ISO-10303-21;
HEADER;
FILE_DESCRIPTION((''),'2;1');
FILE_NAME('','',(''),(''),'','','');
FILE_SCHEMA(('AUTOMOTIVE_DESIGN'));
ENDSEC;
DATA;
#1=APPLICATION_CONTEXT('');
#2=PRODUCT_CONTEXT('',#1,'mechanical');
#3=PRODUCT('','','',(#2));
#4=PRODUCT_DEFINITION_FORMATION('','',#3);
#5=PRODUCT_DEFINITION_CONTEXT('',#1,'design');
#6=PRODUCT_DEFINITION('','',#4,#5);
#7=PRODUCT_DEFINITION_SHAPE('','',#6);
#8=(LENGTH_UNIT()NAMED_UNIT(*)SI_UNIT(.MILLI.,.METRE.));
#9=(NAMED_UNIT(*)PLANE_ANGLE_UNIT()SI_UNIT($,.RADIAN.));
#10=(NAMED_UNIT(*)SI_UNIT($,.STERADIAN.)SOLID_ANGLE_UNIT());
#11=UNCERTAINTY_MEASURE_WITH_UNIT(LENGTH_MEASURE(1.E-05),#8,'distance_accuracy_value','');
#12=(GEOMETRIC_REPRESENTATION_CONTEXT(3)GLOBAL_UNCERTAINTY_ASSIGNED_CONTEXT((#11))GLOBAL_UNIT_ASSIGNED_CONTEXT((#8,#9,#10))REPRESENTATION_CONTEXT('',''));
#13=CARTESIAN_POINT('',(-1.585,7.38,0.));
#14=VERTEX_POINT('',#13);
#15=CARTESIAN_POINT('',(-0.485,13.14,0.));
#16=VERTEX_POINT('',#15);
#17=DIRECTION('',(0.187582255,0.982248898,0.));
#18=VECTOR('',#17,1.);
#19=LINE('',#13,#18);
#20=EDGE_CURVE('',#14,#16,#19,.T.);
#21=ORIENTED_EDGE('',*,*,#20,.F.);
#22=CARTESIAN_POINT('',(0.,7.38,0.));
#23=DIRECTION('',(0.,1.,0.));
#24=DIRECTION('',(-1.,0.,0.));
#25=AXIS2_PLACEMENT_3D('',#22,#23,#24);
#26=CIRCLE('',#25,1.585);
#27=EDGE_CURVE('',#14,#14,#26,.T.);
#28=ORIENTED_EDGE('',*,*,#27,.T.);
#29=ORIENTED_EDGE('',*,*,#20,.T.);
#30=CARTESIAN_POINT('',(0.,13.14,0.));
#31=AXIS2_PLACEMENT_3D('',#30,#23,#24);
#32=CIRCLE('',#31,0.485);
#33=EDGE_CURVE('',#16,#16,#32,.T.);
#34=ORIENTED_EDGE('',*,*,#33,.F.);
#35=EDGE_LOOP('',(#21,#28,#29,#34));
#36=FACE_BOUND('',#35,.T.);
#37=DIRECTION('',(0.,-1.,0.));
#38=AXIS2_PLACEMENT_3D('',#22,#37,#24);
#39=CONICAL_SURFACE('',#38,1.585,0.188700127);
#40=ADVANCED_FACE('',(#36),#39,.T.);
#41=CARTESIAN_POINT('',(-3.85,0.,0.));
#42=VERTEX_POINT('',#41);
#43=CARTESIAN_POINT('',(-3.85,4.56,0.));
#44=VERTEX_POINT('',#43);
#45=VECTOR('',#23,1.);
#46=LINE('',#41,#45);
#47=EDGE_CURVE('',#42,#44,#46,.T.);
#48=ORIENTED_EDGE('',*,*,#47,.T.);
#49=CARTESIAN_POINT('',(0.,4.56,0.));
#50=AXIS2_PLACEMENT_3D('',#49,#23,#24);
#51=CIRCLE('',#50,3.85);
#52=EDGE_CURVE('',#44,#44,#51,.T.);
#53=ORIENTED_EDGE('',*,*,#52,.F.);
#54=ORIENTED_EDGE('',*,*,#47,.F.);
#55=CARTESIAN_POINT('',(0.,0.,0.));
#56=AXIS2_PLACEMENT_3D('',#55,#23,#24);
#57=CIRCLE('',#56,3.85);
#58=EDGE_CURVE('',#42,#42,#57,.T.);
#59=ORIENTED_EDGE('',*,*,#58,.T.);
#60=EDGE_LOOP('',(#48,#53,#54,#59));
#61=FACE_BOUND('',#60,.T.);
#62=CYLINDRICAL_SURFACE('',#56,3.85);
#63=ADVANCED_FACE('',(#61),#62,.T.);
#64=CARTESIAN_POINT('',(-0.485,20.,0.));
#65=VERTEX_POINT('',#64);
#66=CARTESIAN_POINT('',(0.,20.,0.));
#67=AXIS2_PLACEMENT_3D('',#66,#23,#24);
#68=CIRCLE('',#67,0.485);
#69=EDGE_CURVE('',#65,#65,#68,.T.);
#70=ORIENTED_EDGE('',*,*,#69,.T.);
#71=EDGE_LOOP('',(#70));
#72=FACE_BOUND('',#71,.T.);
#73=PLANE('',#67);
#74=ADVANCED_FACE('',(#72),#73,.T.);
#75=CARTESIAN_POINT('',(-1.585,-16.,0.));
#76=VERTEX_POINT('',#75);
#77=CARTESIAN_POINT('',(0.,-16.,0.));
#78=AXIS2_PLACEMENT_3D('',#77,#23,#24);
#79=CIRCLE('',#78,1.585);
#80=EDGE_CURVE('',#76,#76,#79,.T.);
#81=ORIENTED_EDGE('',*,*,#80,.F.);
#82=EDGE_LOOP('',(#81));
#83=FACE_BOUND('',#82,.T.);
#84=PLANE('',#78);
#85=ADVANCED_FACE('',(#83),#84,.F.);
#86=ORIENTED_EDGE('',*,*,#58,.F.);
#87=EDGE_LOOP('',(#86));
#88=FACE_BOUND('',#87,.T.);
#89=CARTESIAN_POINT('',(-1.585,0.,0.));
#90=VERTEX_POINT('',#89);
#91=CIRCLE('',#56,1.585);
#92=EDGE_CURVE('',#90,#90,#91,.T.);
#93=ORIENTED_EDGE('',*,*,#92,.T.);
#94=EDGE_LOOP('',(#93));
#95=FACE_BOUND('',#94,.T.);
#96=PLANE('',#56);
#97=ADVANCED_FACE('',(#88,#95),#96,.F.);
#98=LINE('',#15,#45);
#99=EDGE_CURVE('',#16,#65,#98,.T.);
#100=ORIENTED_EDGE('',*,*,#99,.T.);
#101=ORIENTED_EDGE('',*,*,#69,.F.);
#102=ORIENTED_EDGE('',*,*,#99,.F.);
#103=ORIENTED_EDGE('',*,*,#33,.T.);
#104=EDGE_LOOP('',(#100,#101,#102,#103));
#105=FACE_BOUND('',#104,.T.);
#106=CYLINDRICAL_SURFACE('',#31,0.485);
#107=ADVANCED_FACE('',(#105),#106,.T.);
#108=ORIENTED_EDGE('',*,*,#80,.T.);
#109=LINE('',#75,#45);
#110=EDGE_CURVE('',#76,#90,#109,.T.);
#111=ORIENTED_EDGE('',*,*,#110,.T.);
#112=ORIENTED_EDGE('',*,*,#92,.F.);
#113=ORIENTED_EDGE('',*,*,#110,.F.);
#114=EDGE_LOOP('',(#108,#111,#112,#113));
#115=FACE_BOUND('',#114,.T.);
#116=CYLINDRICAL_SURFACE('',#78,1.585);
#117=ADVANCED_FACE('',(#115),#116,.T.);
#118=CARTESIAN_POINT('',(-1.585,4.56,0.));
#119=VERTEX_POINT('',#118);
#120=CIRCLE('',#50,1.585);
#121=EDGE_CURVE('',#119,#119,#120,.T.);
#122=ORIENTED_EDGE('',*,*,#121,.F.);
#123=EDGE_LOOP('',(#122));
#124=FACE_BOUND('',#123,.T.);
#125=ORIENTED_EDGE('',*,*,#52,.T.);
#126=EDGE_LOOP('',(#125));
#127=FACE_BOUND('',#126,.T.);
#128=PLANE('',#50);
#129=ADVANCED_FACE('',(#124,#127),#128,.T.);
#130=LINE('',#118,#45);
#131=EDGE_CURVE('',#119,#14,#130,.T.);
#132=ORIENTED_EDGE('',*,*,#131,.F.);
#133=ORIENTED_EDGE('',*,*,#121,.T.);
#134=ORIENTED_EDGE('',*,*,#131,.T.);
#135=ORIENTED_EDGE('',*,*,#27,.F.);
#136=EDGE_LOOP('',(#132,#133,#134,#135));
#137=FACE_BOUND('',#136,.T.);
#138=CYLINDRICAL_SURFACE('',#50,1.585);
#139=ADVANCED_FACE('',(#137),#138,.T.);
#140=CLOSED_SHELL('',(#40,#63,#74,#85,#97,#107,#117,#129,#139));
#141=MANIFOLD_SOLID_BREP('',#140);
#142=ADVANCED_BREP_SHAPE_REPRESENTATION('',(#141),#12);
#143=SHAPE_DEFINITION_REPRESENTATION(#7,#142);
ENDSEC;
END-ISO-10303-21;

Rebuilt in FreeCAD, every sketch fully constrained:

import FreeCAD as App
import Part
import Sketcher

V = App.Vector
Q = App.Units.Quantity


def add_polygon(sketch, points):
    """Adds a closed chain of lines whose ends are joined by coincident constraints."""
    first, n = sketch.GeometryCount, len(points)
    for a, b in zip(points, points[1:] + points[:1]):
        sketch.addGeometry(Part.LineSegment(App.Vector(*a, 0), App.Vector(*b, 0)), False)
    for i in range(n):
        sketch.addConstraint(Sketcher.Constraint("Coincident", first + i, 2, first + (i + 1) % n, 1))

doc = App.newDocument("Part")
params = doc.addObject("Spreadsheet::Sheet", "Params")
for row, (alias, value) in enumerate([
    ("sketch1_height", "16 mm"),
    ("sketch1_height2", "36 mm"),
    ("sketch1_height3", "6.86 mm"),
    ("sketch1_height4", "2.82 mm"),
    ("sketch1_height5", "4.56 mm"),
    ("revolution_angle", "360 deg"),
], start=1):
    params.set(f"A{row}", alias)
    params.set(f"B{row}", "=" + value)
    params.setAlias(f"B{row}", alias)

body = doc.addObject("PartDesign::Body", "Body")

sketch1 = body.newObject("Sketcher::SketchObject", "Sketch")
sketch1.AttachmentSupport = (doc.getObject("XY_Plane"), [""])
sketch1.MapMode = "FlatFace"
add_polygon(sketch1, [(-3.85, 0), (-1.58, 0), (-1.58, -16), (0, -16), (0, 20), (-0.48, 20), (-0.48, 13.14), (-1.58, 7.38), (-1.58, 4.56), (-3.85, 4.56)])
sketch1.addConstraint([
    Sketcher.Constraint("Horizontal", 0),
    Sketcher.Constraint("Vertical", 1),
    Sketcher.Constraint("Horizontal", 2),
    Sketcher.Constraint("Vertical", 3),
    Sketcher.Constraint("Horizontal", 4),
    Sketcher.Constraint("Vertical", 5),
    Sketcher.Constraint("Vertical", 7),
    Sketcher.Constraint("Horizontal", 8),
    Sketcher.Constraint("Vertical", 9),
    Sketcher.Constraint("PointOnObject", 0, 2, -1),
    Sketcher.Constraint("PointOnObject", 2, 2, -2),
    Sketcher.Constraint("Vertical", 1, 2, 6, 2),
    Sketcher.Constraint("DistanceY", 1, 2, 1, 1, Q("16 mm")),
    Sketcher.Constraint("DistanceY", 3, 1, 3, 2, Q("36 mm")),
    Sketcher.Constraint("DistanceY", 5, 2, 5, 1, Q("6.86 mm")),
    Sketcher.Constraint("DistanceY", 7, 2, 7, 1, Q("2.82 mm")),
    Sketcher.Constraint("DistanceY", 9, 2, 9, 1, Q("4.56 mm")),
    Sketcher.Constraint("DistanceX", 0, 2, 4, 2, Q("1.1 mm")),
    Sketcher.Constraint("DistanceX", 0, 1, 0, 2, Q("2.265 mm")),
    Sketcher.Constraint("DistanceX", 2, 1, 2, 2, Q("1.585 mm")),
])
sketch1.setExpression("Constraints[22]", "Params.sketch1_height")
sketch1.setExpression("Constraints[23]", "Params.sketch1_height2")
sketch1.setExpression("Constraints[24]", "Params.sketch1_height3")
sketch1.setExpression("Constraints[25]", "Params.sketch1_height4")
sketch1.setExpression("Constraints[26]", "Params.sketch1_height5")
revolution = body.newObject("PartDesign::Revolution", "Revolution")
revolution.Profile = sketch1
revolution.ReferenceAxis = (sketch1, ["V_Axis"])
revolution.setExpression("Angle", "Params.revolution_angle")

doc.recompute()
